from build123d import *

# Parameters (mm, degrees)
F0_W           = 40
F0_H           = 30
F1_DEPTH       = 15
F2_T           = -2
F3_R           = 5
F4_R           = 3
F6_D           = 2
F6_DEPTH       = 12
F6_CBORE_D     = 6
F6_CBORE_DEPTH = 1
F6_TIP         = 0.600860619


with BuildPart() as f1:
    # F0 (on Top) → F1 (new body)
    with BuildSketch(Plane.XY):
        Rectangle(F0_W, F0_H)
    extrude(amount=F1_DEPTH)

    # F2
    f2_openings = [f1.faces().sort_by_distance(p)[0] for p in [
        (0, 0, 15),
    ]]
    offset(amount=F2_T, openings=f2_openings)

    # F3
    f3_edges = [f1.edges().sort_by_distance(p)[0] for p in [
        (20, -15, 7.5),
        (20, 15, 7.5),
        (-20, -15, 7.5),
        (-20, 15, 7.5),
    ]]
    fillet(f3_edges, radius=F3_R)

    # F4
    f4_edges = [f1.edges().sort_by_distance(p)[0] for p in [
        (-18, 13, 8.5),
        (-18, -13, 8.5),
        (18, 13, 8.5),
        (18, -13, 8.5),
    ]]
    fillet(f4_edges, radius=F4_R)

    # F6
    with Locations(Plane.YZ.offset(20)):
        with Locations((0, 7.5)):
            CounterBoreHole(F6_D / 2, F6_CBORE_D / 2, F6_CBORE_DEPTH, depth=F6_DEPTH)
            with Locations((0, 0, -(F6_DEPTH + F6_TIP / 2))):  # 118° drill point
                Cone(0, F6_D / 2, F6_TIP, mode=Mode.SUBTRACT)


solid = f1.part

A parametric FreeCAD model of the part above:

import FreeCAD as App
import Part
import Sketcher
from FreeCAD import Vector


def edges_at(feature, points):
    """Names of the edges that pass closest to the given points."""
    edges = feature.Shape.Edges
    near = lambda p: min(range(len(edges)), key=lambda i: edges[i].distToShape(Part.Vertex(*p))[0])
    return sorted({f"Edge{near(p) + 1}" for p in points})


def faces_at(feature, points):
    """Names of the faces that lie closest to the given points."""
    faces = feature.Shape.Faces
    near = lambda p: min(range(len(faces)), key=lambda i: faces[i].distToShape(Part.Vertex(*p))[0])
    return sorted({f"Face{near(p) + 1}" for p in points})


def add_polygon(sketch, points):
    """Adds a closed chain of lines whose ends are joined by coincident constraints."""
    first, n = sketch.GeometryCount, len(points)
    for a, b in zip(points, points[1:] + points[:1]):
        sketch.addGeometry(Part.LineSegment(App.Vector(*a, 0), App.Vector(*b, 0)), False)
    for i in range(n):
        sketch.addConstraint(Sketcher.Constraint("Coincident", first + i, 2, first + (i + 1) % n, 1))

doc = App.newDocument("Part")
body = doc.addObject("PartDesign::Body", "Body")

sketch1 = doc.addObject("Sketcher::SketchObject", "Sketch")
body.addObject(sketch1)
sketch1.AttachmentSupport = (doc.XY_Plane, [""])
sketch1.MapMode = "FlatFace"
add_polygon(sketch1, [(-20, 15), (-20, -15), (20, -15), (20, 15)])
sketch1.addConstraint(Sketcher.Constraint("Vertical", 0))
sketch1.addConstraint(Sketcher.Constraint("Horizontal", 1))
sketch1.addConstraint(Sketcher.Constraint("Vertical", 2))
sketch1.addConstraint(Sketcher.Constraint("Horizontal", 3))
sketch1.addConstraint(Sketcher.Constraint("Symmetric", 0, 2, 2, 2, -1, 1))
sketch1.addConstraint(Sketcher.Constraint("DistanceX", 1, 1, 1, 2, 40.0))
sketch1.addConstraint(Sketcher.Constraint("DistanceY", 0, 2, 0, 1, 30.0))
pad1 = doc.addObject("PartDesign::Pad", "Pad")
body.addObject(pad1)
pad1.Profile = sketch1
pad1.Length = 15
doc.recompute()

thickness = doc.addObject("PartDesign::Thickness", "Thickness")
body.addObject(thickness)
thickness.Base = (pad1, faces_at(pad1, [(0, 0, 15)]))
thickness.Value = 2
thickness.Reversed = True
thickness.Join = "Arc"
doc.recompute()

fillet = doc.addObject("PartDesign::Fillet", "Fillet")
body.addObject(fillet)
fillet.Base = (thickness, edges_at(thickness, [
    (20, -15, 7.5),
    (20, 15, 7.5),
    (-20, -15, 7.5),
    (-20, 15, 7.5),
]))
fillet.Radius = 5
doc.recompute()

fillet2 = doc.addObject("PartDesign::Fillet", "Fillet001")
body.addObject(fillet2)
fillet2.Base = (fillet, edges_at(fillet, [
    (-18, 13, 8.5),
    (-18, -13, 8.5),
    (18, 13, 8.5),
    (18, -13, 8.5),
]))
fillet2.Radius = 3

sketch2 = doc.addObject("Sketcher::SketchObject", "Sketch001")
body.addObject(sketch2)
sketch2.AttachmentSupport = (doc.YZ_Plane, [""])
sketch2.MapMode = "FlatFace"
sketch2.AttachmentOffset = App.Placement(Vector(0, 0, 20), App.Rotation())
sketch2.addGeometry(Part.Circle(Vector(0, 7.5, 0), Vector(0, 0, 1), 1), False)
sketch2.addConstraint(Sketcher.Constraint("PointOnObject", 0, 3, -2))
sketch2.addConstraint(Sketcher.Constraint("Diameter", 0, 2.0))
sketch2.addConstraint(Sketcher.Constraint("DistanceY", -1, 1, 0, 3, 7.5))
doc.recompute()
hole = doc.addObject("PartDesign::Hole", "Hole")
body.addObject(hole)
hole.Profile = sketch2
hole.ThreadType = "None"
hole.Diameter = 2
hole.DepthType = "Dimension"
hole.Depth = 12
hole.DrillPoint = "Angled"
hole.DrillPointAngle = 118
hole.HoleCutType = "Counterbore"
hole.HoleCutDiameter = 6
hole.HoleCutDepth = 1

doc.recompute()
